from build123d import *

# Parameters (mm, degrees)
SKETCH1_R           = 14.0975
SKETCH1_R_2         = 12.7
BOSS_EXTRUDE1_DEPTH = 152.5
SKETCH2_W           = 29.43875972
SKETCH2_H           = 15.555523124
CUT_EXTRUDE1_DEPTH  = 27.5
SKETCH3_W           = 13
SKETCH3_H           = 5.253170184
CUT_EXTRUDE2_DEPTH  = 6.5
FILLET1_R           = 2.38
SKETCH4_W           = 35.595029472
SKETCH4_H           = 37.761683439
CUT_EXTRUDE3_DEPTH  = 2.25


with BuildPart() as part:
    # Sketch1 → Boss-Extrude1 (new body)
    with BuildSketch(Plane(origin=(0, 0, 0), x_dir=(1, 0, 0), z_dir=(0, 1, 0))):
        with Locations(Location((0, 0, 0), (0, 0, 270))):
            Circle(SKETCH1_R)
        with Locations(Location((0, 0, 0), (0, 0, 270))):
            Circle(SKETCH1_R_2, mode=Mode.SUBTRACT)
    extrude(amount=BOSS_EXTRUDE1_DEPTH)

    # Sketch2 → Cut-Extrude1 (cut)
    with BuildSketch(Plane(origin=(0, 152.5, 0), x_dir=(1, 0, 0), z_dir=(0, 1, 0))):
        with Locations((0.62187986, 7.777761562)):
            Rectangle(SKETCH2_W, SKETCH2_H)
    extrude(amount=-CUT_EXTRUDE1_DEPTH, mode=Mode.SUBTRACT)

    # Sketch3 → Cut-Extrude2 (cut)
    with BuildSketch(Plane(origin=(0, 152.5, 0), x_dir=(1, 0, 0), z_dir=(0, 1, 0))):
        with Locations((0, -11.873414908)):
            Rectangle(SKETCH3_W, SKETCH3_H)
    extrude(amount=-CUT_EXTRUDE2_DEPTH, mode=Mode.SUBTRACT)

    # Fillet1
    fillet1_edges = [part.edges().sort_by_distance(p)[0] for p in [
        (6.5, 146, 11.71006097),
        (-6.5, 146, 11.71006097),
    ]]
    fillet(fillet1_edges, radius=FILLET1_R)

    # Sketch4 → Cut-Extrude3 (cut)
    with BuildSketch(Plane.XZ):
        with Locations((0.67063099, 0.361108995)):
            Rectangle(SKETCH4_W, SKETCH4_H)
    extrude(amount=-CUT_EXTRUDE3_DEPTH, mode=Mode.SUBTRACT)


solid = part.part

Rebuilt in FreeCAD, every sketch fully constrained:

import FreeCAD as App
import Part
import Sketcher
from FreeCAD import Vector


def edges_at(feature, points):
    """Names of the edges that pass closest to the given points."""
    edges = feature.Shape.Edges
    near = lambda p: min(range(len(edges)), key=lambda i: edges[i].distToShape(Part.Vertex(*p))[0])
    return sorted({f"Edge{near(p) + 1}" for p in points})


def add_polygon(sketch, points):
    """Adds a closed chain of lines whose ends are joined by coincident constraints."""
    first, n = sketch.GeometryCount, len(points)
    for a, b in zip(points, points[1:] + points[:1]):
        sketch.addGeometry(Part.LineSegment(App.Vector(*a, 0), App.Vector(*b, 0)), False)
    for i in range(n):
        sketch.addConstraint(Sketcher.Constraint("Coincident", first + i, 2, first + (i + 1) % n, 1))

doc = App.newDocument("Part")
body = doc.addObject("PartDesign::Body", "Body")

sketch1 = body.newObject("Sketcher::SketchObject", "Sketch")
sketch1.AttachmentSupport = (doc.getObject("XZ_Plane"), [""])
sketch1.MapMode = "FlatFace"
sketch1.addGeometry(Part.Circle(Vector(0, 0, 0), Vector(0, 0, 1), 14.0975), False)
sketch1.addGeometry(Part.Circle(Vector(0, 0, 0), Vector(0, 0, 1), 12.7), False)
sketch1.addConstraint(Sketcher.Constraint("Coincident", 0, 3, -1, 1))
sketch1.addConstraint(Sketcher.Constraint("Coincident", 1, 3, -1, 1))
sketch1.addConstraint(Sketcher.Constraint("Diameter", 1, 25.4))
sketch1.addConstraint(Sketcher.Constraint("Diameter", 0, 28.195))
pad1 = body.newObject("PartDesign::Pad", "Pad")
pad1.Profile = sketch1
pad1.Length = 152.5
pad1.Reversed = True

sketch2 = body.newObject("Sketcher::SketchObject", "Sketch001")
sketch2.AttachmentSupport = (doc.getObject("XZ_Plane"), [""])
sketch2.MapMode = "FlatFace"
sketch2.AttachmentOffset = App.Placement(Vector(0, 0, -152.5), App.Rotation())
add_polygon(sketch2, [(-14.0975, -15.555523), (-14.0975, 0), (15.34126, 0), (15.34126, -15.555523)])
sketch2.addConstraint(Sketcher.Constraint("Vertical", 0))
sketch2.addConstraint(Sketcher.Constraint("Horizontal", 1))
sketch2.addConstraint(Sketcher.Constraint("Vertical", 2))
sketch2.addConstraint(Sketcher.Constraint("Horizontal", 3))
sketch2.addConstraint(Sketcher.Constraint("PointOnObject", 0, 2, -1))
sketch2.addConstraint(Sketcher.Constraint("DistanceX", 1, 1, 1, 2, 29.43876))
sketch2.addConstraint(Sketcher.Constraint("DistanceX", 0, 2, -1, 1, 14.0975))
sketch2.addConstraint(Sketcher.Constraint("DistanceY", 0, 1, 0, 2, 15.555523))
pocket1 = body.newObject("PartDesign::Pocket", "Pocket")
pocket1.Profile = sketch2
pocket1.Length = 27.5
pocket1.Reversed = True

sketch3 = body.newObject("Sketcher::SketchObject", "Sketch002")
sketch3.AttachmentSupport = (doc.getObject("XZ_Plane"), [""])
sketch3.MapMode = "FlatFace"
sketch3.AttachmentOffset = App.Placement(Vector(0, 0, -152.5), App.Rotation())
add_polygon(sketch3, [(-6.5, 9.24683), (-6.5, 14.5), (6.5, 14.5), (6.5, 9.24683)])
sketch3.addConstraint(Sketcher.Constraint("Vertical", 0))
sketch3.addConstraint(Sketcher.Constraint("Horizontal", 1))
sketch3.addConstraint(Sketcher.Constraint("Vertical", 2))
sketch3.addConstraint(Sketcher.Constraint("Horizontal", 3))
sketch3.addConstraint(Sketcher.Constraint("DistanceX", 1, 1, 1, 2, 13.0))
sketch3.addConstraint(Sketcher.Constraint("DistanceX", 0, 2, -1, 1, 6.5))
sketch3.addConstraint(Sketcher.Constraint("DistanceY", -1, 1, 0, 2, 14.5))
sketch3.addConstraint(Sketcher.Constraint("DistanceY", 0, 1, 0, 2, 5.25317))
pocket2 = body.newObject("PartDesign::Pocket", "Pocket001")
pocket2.Profile = sketch3
pocket2.Length = 6.5
pocket2.Reversed = True
doc.recompute()

fillet = body.newObject("PartDesign::Fillet", "Fillet")
fillet.Base = (pocket2, edges_at(pocket2, [(6.5, 146, 11.71), (-6.5, 146, 11.71)]))
fillet.Radius = 2.38

sketch4 = body.newObject("Sketcher::SketchObject", "Sketch003")
sketch4.AttachmentSupport = (doc.getObject("XZ_Plane"), [""])
sketch4.MapMode = "FlatFace"
add_polygon(sketch4, [(-17.126884, 19.241951), (-17.126884, -18.519733), (18.468146, -18.519733), (18.468146, 19.241951)])
sketch4.addConstraint(Sketcher.Constraint("Vertical", 0))
sketch4.addConstraint(Sketcher.Constraint("Horizontal", 1))
sketch4.addConstraint(Sketcher.Constraint("Vertical", 2))
sketch4.addConstraint(Sketcher.Constraint("Horizontal", 3))
sketch4.addConstraint(Sketcher.Constraint("DistanceX", 1, 1, 1, 2, 35.595029))
sketch4.addConstraint(Sketcher.Constraint("DistanceY", 0, 2, 0, 1, 37.761683))
sketch4.addConstraint(Sketcher.Constraint("DistanceY", -1, 1, 2, 2, 19.241951))
sketch4.addConstraint(Sketcher.Constraint("DistanceX", 0, 2, -1, 1, 17.126884))
pocket3 = body.newObject("PartDesign::Pocket", "Pocket002")
pocket3.Profile = sketch4
pocket3.Length = 2.25

doc.recompute()
